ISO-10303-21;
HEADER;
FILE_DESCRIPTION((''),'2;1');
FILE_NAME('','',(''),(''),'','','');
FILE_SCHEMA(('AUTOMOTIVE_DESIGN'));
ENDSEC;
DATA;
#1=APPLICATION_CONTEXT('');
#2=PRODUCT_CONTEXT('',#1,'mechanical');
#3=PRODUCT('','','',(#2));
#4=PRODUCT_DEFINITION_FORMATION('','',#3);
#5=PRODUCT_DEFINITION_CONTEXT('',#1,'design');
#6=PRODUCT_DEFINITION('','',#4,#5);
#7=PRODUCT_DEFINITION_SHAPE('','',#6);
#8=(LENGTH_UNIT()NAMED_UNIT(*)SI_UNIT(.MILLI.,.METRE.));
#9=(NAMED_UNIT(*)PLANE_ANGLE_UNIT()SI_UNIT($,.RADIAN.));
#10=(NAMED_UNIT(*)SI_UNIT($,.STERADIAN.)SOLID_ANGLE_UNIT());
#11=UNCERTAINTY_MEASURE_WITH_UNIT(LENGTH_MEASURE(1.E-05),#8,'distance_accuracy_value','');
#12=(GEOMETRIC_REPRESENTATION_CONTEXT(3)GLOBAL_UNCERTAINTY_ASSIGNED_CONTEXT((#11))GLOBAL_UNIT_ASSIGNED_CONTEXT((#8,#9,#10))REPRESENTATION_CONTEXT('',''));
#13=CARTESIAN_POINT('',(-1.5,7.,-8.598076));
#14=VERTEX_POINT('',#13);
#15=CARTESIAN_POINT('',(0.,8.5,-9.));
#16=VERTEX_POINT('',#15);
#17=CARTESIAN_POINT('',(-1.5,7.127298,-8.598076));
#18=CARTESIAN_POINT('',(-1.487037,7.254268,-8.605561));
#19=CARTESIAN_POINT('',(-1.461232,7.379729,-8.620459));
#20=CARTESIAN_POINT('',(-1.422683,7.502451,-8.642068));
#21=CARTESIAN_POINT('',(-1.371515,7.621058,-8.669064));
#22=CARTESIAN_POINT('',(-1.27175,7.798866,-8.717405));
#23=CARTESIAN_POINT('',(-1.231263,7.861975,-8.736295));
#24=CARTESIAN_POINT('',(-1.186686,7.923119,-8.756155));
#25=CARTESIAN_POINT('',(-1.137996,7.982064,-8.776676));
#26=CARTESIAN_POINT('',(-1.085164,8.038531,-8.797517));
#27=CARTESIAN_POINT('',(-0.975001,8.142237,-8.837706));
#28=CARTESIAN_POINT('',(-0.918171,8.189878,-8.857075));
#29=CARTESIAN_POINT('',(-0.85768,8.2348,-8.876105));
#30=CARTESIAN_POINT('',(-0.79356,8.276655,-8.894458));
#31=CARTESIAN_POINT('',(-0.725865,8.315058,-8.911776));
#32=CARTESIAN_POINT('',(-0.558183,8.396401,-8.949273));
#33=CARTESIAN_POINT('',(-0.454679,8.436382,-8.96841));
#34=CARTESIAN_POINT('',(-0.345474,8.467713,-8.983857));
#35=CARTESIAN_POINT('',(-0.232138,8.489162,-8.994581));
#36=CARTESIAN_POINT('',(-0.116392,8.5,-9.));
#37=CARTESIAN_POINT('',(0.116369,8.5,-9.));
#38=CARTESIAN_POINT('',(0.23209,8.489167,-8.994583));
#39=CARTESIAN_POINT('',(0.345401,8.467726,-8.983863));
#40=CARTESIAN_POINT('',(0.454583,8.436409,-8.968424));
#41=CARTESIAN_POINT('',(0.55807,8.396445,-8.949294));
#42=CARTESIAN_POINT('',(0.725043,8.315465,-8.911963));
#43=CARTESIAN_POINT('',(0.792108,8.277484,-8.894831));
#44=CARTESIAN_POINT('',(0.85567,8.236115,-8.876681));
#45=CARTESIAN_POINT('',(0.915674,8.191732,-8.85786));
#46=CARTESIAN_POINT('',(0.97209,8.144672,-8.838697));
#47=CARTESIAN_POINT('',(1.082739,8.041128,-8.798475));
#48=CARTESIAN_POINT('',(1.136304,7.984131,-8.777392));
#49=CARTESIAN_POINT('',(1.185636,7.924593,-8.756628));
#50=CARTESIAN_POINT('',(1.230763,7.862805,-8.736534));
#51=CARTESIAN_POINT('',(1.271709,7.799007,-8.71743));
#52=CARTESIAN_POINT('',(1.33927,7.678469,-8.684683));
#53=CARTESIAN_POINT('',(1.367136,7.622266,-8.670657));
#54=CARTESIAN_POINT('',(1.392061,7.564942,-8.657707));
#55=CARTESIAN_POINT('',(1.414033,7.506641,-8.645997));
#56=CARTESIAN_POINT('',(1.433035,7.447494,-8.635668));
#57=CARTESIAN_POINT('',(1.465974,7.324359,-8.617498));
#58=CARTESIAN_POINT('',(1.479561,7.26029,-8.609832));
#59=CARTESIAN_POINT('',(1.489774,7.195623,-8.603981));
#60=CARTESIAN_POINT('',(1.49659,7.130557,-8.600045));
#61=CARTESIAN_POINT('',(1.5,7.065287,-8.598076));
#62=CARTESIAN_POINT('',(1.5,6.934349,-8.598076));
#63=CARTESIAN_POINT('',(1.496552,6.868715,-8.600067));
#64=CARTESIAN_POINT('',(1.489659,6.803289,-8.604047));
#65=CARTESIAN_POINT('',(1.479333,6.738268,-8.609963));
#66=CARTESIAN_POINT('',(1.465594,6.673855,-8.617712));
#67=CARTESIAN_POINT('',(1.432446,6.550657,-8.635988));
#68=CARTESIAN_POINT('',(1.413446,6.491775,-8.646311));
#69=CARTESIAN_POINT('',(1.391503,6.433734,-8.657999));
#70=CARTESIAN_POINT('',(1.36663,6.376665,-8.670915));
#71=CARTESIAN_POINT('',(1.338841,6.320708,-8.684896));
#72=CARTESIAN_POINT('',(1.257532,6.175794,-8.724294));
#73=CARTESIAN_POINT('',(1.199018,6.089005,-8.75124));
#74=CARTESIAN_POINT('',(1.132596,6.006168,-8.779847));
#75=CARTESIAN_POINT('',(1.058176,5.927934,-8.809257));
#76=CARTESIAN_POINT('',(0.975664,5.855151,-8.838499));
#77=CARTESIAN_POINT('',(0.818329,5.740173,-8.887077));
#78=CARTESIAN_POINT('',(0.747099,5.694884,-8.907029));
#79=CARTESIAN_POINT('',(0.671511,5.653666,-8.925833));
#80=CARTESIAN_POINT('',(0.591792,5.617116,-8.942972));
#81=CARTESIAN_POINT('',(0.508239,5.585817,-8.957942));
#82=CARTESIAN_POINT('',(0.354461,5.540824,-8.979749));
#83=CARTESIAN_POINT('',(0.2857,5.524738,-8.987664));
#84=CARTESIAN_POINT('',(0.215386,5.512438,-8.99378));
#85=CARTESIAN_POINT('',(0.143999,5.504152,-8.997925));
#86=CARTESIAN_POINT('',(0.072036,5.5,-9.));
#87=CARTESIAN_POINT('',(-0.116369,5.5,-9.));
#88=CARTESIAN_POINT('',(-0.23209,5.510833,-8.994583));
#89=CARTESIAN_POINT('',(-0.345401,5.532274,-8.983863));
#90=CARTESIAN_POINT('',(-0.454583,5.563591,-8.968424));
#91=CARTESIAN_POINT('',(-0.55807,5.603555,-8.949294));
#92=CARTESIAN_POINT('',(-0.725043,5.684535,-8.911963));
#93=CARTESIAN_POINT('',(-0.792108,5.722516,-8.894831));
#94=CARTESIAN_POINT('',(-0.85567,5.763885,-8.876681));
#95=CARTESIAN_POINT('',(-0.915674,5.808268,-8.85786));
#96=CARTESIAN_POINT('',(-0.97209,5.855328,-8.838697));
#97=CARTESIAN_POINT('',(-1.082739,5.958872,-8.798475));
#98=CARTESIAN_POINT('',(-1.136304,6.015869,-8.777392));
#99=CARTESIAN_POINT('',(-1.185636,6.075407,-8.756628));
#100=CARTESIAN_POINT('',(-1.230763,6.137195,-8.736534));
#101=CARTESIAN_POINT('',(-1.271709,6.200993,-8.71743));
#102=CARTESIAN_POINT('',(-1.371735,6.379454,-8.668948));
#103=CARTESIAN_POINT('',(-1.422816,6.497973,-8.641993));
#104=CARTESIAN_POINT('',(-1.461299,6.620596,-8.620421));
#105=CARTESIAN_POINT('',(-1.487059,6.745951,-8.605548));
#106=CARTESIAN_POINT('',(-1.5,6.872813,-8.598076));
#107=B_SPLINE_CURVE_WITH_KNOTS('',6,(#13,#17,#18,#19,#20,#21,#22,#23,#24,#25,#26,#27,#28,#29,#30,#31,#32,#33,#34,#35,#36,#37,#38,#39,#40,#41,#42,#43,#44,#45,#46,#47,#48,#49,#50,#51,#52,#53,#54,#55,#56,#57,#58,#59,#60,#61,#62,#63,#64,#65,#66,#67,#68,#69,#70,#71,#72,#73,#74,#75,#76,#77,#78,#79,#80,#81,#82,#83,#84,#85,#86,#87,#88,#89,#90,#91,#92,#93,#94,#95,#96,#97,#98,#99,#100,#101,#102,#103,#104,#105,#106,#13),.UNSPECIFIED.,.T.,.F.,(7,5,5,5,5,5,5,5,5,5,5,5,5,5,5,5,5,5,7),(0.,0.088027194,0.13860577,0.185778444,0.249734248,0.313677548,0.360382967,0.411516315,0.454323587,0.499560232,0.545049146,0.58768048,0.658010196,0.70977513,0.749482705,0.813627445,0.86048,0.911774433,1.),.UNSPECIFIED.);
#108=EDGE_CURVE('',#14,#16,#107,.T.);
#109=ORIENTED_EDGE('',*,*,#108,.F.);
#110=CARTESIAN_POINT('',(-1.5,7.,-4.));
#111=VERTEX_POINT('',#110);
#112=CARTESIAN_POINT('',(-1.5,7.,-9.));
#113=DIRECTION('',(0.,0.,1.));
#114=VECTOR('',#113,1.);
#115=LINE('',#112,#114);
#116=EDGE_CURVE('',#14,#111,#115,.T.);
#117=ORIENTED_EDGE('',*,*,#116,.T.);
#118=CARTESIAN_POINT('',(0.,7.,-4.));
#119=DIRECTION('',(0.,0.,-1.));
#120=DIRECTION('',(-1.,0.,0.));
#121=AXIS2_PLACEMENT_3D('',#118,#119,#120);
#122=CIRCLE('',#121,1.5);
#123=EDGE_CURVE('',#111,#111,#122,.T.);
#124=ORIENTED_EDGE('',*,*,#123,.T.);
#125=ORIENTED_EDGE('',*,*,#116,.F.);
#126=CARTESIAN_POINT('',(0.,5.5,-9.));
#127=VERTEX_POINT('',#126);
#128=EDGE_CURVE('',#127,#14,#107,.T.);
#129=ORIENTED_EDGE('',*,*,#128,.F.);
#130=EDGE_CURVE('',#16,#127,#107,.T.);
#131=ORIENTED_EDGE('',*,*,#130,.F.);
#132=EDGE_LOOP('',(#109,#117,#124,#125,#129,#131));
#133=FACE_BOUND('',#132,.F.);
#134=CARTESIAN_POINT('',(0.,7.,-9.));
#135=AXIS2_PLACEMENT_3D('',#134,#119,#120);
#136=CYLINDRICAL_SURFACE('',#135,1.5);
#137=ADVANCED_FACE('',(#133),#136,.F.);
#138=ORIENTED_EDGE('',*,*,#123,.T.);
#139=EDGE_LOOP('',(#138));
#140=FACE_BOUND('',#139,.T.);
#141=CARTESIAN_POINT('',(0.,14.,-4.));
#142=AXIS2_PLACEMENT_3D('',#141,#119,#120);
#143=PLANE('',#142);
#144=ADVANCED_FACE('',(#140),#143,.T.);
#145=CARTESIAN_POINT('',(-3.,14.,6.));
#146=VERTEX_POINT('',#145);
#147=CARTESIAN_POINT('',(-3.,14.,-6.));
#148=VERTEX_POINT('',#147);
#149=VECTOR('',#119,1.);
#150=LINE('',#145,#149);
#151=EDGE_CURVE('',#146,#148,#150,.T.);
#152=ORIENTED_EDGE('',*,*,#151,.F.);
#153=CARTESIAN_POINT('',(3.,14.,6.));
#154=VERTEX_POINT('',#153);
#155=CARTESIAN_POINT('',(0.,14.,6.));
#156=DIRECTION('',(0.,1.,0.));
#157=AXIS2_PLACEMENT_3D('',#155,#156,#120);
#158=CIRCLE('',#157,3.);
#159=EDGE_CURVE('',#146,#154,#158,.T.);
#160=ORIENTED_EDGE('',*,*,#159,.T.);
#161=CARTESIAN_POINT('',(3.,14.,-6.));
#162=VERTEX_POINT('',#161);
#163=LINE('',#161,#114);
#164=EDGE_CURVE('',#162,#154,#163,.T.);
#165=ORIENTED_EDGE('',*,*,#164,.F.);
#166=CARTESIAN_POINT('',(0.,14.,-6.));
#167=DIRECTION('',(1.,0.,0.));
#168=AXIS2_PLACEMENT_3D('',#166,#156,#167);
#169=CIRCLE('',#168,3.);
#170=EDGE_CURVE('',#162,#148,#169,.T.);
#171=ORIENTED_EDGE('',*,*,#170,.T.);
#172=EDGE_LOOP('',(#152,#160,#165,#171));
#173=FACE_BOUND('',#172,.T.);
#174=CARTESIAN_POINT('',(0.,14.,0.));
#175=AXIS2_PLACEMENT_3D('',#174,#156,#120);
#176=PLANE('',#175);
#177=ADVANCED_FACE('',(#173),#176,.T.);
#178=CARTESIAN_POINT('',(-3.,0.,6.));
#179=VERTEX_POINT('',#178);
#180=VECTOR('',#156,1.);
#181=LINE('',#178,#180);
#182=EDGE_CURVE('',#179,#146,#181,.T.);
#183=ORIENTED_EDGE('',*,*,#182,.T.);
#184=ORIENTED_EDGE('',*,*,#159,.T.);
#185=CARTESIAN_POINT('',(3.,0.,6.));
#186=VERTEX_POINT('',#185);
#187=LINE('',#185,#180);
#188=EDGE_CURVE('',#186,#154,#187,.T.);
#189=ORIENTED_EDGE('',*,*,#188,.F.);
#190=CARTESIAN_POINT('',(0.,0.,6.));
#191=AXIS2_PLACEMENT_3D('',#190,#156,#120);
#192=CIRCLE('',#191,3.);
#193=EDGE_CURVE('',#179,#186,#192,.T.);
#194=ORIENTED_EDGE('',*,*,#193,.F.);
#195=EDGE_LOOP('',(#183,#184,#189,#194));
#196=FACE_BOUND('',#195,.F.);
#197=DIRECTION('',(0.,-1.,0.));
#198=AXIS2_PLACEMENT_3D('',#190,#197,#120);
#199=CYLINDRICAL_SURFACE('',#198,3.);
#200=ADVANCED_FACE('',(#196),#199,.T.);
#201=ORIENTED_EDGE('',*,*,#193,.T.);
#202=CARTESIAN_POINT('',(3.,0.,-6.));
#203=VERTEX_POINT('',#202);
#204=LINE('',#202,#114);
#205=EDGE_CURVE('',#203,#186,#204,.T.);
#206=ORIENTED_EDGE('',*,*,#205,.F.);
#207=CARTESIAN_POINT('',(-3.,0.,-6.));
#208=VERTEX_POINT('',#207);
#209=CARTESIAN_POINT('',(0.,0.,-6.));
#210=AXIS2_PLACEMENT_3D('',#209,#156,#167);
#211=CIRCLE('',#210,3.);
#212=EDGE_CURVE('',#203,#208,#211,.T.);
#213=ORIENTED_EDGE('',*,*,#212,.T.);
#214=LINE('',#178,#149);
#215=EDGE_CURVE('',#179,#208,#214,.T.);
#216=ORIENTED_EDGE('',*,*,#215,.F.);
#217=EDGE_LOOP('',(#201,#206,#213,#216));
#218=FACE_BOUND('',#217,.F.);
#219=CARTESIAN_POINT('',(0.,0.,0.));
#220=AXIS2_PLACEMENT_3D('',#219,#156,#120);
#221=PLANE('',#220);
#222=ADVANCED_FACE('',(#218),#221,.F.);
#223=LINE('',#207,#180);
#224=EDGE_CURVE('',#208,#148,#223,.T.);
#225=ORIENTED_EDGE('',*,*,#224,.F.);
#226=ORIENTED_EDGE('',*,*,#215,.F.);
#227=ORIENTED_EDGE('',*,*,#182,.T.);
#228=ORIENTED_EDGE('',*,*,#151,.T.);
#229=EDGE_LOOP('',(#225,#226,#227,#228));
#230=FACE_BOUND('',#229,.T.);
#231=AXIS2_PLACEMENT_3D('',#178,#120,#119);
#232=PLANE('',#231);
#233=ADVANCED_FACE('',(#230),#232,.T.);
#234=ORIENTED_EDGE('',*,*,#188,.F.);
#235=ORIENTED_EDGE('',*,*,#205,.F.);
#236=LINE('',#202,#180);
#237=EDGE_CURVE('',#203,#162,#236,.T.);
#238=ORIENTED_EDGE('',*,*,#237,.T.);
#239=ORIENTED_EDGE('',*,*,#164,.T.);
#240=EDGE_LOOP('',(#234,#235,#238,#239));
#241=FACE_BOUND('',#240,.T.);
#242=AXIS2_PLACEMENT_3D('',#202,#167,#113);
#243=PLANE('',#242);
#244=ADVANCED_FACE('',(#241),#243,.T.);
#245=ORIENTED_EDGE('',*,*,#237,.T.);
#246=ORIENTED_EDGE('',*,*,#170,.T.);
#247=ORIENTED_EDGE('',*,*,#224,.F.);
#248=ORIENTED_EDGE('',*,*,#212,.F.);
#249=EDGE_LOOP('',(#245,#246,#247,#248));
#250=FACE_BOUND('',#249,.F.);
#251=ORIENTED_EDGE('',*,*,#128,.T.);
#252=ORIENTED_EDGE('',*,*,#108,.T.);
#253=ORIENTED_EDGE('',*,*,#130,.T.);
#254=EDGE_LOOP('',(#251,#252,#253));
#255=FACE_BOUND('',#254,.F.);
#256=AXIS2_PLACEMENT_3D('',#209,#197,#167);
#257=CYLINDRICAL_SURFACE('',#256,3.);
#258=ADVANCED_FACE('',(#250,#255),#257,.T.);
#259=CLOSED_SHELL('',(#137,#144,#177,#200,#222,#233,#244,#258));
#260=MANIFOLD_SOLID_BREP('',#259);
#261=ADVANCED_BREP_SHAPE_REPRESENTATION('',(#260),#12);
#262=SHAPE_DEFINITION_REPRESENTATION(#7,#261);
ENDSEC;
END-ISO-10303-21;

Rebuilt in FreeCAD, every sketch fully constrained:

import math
import FreeCAD as App
import Part
import Sketcher

doc = App.newDocument("Part")
body = doc.addObject("PartDesign::Body", "Body")

sketch1 = body.newObject("Sketcher::SketchObject", "Sketch")
sketch1.AttachmentSupport = (doc.getObject("XZ_Plane"), [""])
sketch1.MapMode = "FlatFace"
sketch1.addGeometry([
    Part.LineSegment(App.Vector(-3, -6, 0), App.Vector(-3, 6, 0)),
    Part.ArcOfCircle(Part.Circle(App.Vector(0, 6, 0), App.Vector(0, 0, 1), 3), math.radians(0), math.radians(180)),
    Part.LineSegment(App.Vector(3, 6, 0), App.Vector(3, -6, 0)),
    Part.ArcOfCircle(Part.Circle(App.Vector(0, -6, 0), App.Vector(0, 0, 1), 3), math.radians(180), math.radians(360)),
], False)
sketch1.addConstraint([
    Sketcher.Constraint("Tangent", 0, 2, 1, 2),
    Sketcher.Constraint("Tangent", 1, 1, 2, 1),
    Sketcher.Constraint("Tangent", 2, 2, 3, 2),
    Sketcher.Constraint("Tangent", 3, 1, 0, 1),
    Sketcher.Constraint("Vertical", 0),
    Sketcher.Constraint("Vertical", 2),
    Sketcher.Constraint("Symmetric", 1, 3, 3, 3, -1, 1),
    Sketcher.Constraint("Radius", 1, 3.0),
    Sketcher.Constraint("DistanceY", 0, 1, 0, 2, 12.0),
])
pad1 = body.newObject("PartDesign::Pad", "Pad")
pad1.Profile = sketch1
pad1.Length = 14
pad1.Reversed = True

sketch2 = body.newObject("Sketcher::SketchObject", "Sketch001")
sketch2.AttachmentSupport = (doc.getObject("XY_Plane"), [""])
sketch2.MapMode = "FlatFace"
sketch2.AttachmentOffset = App.Placement(App.Vector(0, 0, -9), App.Rotation())
sketch2.addGeometry(Part.Circle(App.Vector(0, 7, 0), App.Vector(0, 0, 1), 1.5), False)
sketch2.addConstraint([
    Sketcher.Constraint("PointOnObject", 0, 3, -2),
    Sketcher.Constraint("Diameter", 0, 3.0),
    Sketcher.Constraint("DistanceY", -1, 1, 0, 3, 7.0),
])
pocket1 = body.newObject("PartDesign::Pocket", "Pocket")
pocket1.Profile = sketch2
pocket1.Length = 5
pocket1.Reversed = True

doc.recompute()
